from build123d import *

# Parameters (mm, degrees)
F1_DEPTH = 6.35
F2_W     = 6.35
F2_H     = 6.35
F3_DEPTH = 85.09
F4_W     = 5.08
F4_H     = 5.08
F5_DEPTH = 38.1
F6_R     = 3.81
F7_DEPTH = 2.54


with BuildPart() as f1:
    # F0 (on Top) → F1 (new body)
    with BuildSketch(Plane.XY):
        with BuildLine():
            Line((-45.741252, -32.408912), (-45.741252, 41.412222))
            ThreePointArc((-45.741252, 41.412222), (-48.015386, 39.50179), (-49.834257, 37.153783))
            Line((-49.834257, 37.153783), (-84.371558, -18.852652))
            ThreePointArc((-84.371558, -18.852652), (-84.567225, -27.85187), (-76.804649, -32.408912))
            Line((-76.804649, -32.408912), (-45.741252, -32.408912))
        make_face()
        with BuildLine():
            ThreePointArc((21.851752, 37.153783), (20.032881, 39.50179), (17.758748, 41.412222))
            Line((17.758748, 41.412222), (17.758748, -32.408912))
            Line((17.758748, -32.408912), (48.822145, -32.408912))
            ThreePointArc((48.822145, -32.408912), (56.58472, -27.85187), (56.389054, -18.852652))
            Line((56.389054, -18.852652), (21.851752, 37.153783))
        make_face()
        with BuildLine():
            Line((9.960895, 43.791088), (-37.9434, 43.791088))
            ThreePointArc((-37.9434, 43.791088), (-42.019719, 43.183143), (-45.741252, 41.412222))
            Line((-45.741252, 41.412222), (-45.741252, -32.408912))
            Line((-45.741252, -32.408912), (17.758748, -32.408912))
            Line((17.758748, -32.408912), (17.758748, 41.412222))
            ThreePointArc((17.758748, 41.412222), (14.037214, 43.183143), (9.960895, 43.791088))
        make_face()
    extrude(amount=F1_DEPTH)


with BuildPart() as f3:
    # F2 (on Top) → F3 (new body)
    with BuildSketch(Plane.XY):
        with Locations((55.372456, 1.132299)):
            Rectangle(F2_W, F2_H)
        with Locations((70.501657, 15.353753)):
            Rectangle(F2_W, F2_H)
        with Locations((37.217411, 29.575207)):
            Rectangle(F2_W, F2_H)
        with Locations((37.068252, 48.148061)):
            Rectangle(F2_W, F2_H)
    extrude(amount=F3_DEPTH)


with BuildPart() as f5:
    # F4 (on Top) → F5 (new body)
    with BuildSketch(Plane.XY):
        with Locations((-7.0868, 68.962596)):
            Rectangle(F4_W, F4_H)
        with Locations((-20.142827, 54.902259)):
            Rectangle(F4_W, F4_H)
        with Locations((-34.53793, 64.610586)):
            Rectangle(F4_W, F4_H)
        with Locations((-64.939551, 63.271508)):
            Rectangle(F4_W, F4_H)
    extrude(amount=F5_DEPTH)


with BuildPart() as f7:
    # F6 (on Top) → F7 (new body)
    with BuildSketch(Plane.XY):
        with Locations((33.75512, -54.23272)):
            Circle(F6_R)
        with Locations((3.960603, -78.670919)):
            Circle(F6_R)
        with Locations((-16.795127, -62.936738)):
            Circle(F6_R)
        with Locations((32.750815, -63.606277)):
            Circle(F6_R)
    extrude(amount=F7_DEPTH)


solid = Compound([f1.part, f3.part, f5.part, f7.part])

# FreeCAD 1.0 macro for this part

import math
import FreeCAD as App
import Part
import Sketcher
from FreeCAD import Vector
Q = App.Units.Quantity


def add_polygon(sketch, points):
    """Adds a closed chain of lines whose ends are joined by coincident constraints."""
    first, n = sketch.GeometryCount, len(points)
    for a, b in zip(points, points[1:] + points[:1]):
        sketch.addGeometry(Part.LineSegment(App.Vector(*a, 0), App.Vector(*b, 0)), False)
    for i in range(n):
        sketch.addConstraint(Sketcher.Constraint("Coincident", first + i, 2, first + (i + 1) % n, 1))

doc = App.newDocument("Part")
body = doc.addObject("PartDesign::Body", "Body")

# Sketch on XY plane
sketch1 = body.newObject("Sketcher::SketchObject", "Sketch")
sketch1.AttachmentSupport = (doc.getObject("XY_Plane"), [""])
sketch1.MapMode = "FlatFace"
sketch1.addGeometry(Part.ArcOfCircle(Part.Circle(Vector(-37.943405, 29.821091, 0), Vector(0, 0, 1), 13.969994), math.radians(123.930401), math.radians(148.33925)), False)
sketch1.addGeometry(Part.LineSegment(Vector(-49.834257, 37.153783, 0), Vector(-84.371558, -18.852652, 0)), False)
sketch1.addGeometry(Part.ArcOfCircle(Part.Circle(Vector(-76.80465, -23.518913, 0), Vector(0, 0, 1), 8.889999), math.radians(148.339243), math.radians(270.000008)), False)
sketch1.addGeometry(Part.LineSegment(Vector(-76.804649, -32.408912, 0), Vector(48.822145, -32.408912, 0)), False)
sketch1.addGeometry(Part.ArcOfCircle(Part.Circle(Vector(48.822145, -23.518912, 0), Vector(0, 0, 1), 8.89), math.radians(-89.999999), math.radians(31.660748)), False)
sketch1.addGeometry(Part.LineSegment(Vector(56.389054, -18.852652, 0), Vector(21.851752, 37.153783, 0)), False)
sketch1.addGeometry(Part.ArcOfCircle(Part.Circle(Vector(9.96089, 29.821083, 0), Vector(0, 0, 1), 13.970007), math.radians(31.660756), math.radians(56.06958)), False)
sketch1.addGeometry(Part.ArcOfCircle(Part.Circle(Vector(9.960893, 29.821081, 0), Vector(0, 0, 1), 13.970007), math.radians(56.069595), math.radians(89.999991)), False)
sketch1.addGeometry(Part.LineSegment(Vector(9.960895, 43.791088, 0), Vector(-37.9434, 43.791088, 0)), False)
sketch1.addGeometry(Part.ArcOfCircle(Part.Circle(Vector(-37.943399, 29.821087, 0), Vector(0, 0, 1), 13.970001), math.radians(90.000005), math.radians(123.930413)), False)
sketch1.addConstraint(Sketcher.Constraint("Coincident", 0, 2, 1, 1))
sketch1.addConstraint(Sketcher.Constraint("Coincident", 1, 2, 2, 1))
sketch1.addConstraint(Sketcher.Constraint("Coincident", 2, 2, 3, 1))
sketch1.addConstraint(Sketcher.Constraint("Coincident", 3, 2, 4, 1))
sketch1.addConstraint(Sketcher.Constraint("Coincident", 4, 2, 5, 1))
sketch1.addConstraint(Sketcher.Constraint("Coincident", 5, 2, 6, 1))
sketch1.addConstraint(Sketcher.Constraint("Coincident", 6, 2, 7, 1))
sketch1.addConstraint(Sketcher.Constraint("Coincident", 7, 2, 8, 1))
sketch1.addConstraint(Sketcher.Constraint("Coincident", 8, 2, 9, 1))
sketch1.addConstraint(Sketcher.Constraint("Coincident", 9, 2, 0, 1))
sketch1.addConstraint(Sketcher.Constraint("Horizontal", 3))
sketch1.addConstraint(Sketcher.Constraint("Horizontal", 8))
sketch1.addConstraint(Sketcher.Constraint("Coincident", 7, 3, 6, 3))
sketch1.addConstraint(Sketcher.Constraint("Coincident", 9, 3, 0, 3))
sketch1.addConstraint(Sketcher.Constraint("Radius", 2, Q("0.35 in")))
sketch1.addConstraint(Sketcher.Constraint("Radius", 4, Q("0.35 in")))
sketch1.addConstraint(Sketcher.Constraint("Radius", 9, Q("0.55 in")))
sketch1.addConstraint(Sketcher.Constraint("DistanceY", 2, 3, 0, 3, Q("2.1000002 in")))
sketch1.addConstraint(Sketcher.Constraint("DistanceY", 4, 3, 6, 3, Q("2.0999998 in")))
sketch1.addConstraint(Sketcher.Constraint("DistanceX", 9, 3, -1, 1, Q("37.943399 mm")))
sketch1.addConstraint(Sketcher.Constraint("DistanceX", 8, 2, -1, 1, Q("37.9434 mm")))
sketch1.addConstraint(Sketcher.Constraint("DistanceY", 6, 3, 0, 2, Q("7.3327 mm")))
sketch1.addConstraint(Sketcher.Constraint("DistanceX", 1, 2, 0, 2, Q("34.537301 mm")))
sketch1.addConstraint(Sketcher.Constraint("DistanceY", 6, 3, 5, 2, Q("7.3327 mm")))
sketch1.addConstraint(Sketcher.Constraint("DistanceX", 3, 1, 3, 2, Q("125.626794 mm")))
sketch1.addConstraint(Sketcher.Constraint("DistanceX", 8, 2, 8, 1, Q("47.904295 mm")))
sketch1.addConstraint(Sketcher.Constraint("DistanceY", -1, 1, 0, 3, Q("29.821091 mm")))
sketch1.addConstraint(Sketcher.Constraint("DistanceX", 2, 3, -1, 1, Q("76.80465 mm")))
sketch1.addConstraint(Sketcher.Constraint("DistanceX", -1, 1, 6, 3, Q("9.96089 mm")))
sketch1.addConstraint(Sketcher.Constraint("DistanceX", 2, 2, -1, 1, Q("76.804649 mm")))
sketch1.addConstraint(Sketcher.Constraint("DistanceY", 4, 2, -1, 1, Q("18.852652 mm")))
sketch1.addConstraint(Sketcher.Constraint("DistanceX", -1, 1, 6, 2, Q("17.758748 mm")))
sketch1.addConstraint(Sketcher.Constraint("DistanceX", 9, 2, -1, 1, Q("45.741252 mm")))
sketch1.addConstraint(Sketcher.Constraint("DistanceX", 0, 3, 4, 3, Q("86.76555 mm")))
pad1 = body.newObject("PartDesign::Pad", "Pad")
pad1.Profile = sketch1
pad1.Length = Q("0.25 in")
body2 = doc.addObject("PartDesign::Body", "Body001")
body2.AllowCompound = True

# Sketch on XY plane
sketch2 = body2.newObject("Sketcher::SketchObject", "Sketch001")
sketch2.AttachmentSupport = (doc.getObject("XY_Plane001"), [""])
sketch2.MapMode = "FlatFace"
add_polygon(sketch2, [(52, 4), (52, -2), (59, -2), (59, 4)])  # lines 0-3
add_polygon(sketch2, [(67, 19), (67, 12), (74, 12), (74, 19)])  # lines 4-7
add_polygon(sketch2, [(34, 33), (34, 26), (40, 26), (40, 33)])  # lines 8-11
add_polygon(sketch2, [(34, 51), (34, 45), (40, 45), (40, 51)])  # lines 12-15
sketch2.addConstraint(Sketcher.Constraint("Vertical", 0))
sketch2.addConstraint(Sketcher.Constraint("Horizontal", 1))
sketch2.addConstraint(Sketcher.Constraint("Vertical", 2))
sketch2.addConstraint(Sketcher.Constraint("Horizontal", 3))
sketch2.addConstraint(Sketcher.Constraint("Vertical", 4))
sketch2.addConstraint(Sketcher.Constraint("Horizontal", 5))
sketch2.addConstraint(Sketcher.Constraint("Vertical", 6))
sketch2.addConstraint(Sketcher.Constraint("Horizontal", 7))
sketch2.addConstraint(Sketcher.Constraint("Vertical", 8))
sketch2.addConstraint(Sketcher.Constraint("Horizontal", 9))
sketch2.addConstraint(Sketcher.Constraint("Vertical", 10))
sketch2.addConstraint(Sketcher.Constraint("Horizontal", 11))
sketch2.addConstraint(Sketcher.Constraint("Vertical", 12))
sketch2.addConstraint(Sketcher.Constraint("Horizontal", 13))
sketch2.addConstraint(Sketcher.Constraint("Vertical", 14))
sketch2.addConstraint(Sketcher.Constraint("Horizontal", 15))
sketch2.addConstraint(Sketcher.Constraint("Equal", 3, 5))
sketch2.addConstraint(Sketcher.Constraint("Equal", 7, 9))
sketch2.addConstraint(Sketcher.Constraint("Equal", 11, 13))
sketch2.addConstraint(Sketcher.Constraint("Equal", 15, 0))
sketch2.addConstraint(Sketcher.Constraint("Equal", 2, 4))
sketch2.addConstraint(Sketcher.Constraint("Equal", 6, 8))
sketch2.addConstraint(Sketcher.Constraint("Equal", 10, 12))
sketch2.addConstraint(Sketcher.Constraint("DistanceX", 1, 1, 1, 2, Q("0.25 in")))
sketch2.addConstraint(Sketcher.Constraint("DistanceY", 0, 2, -1, 1, Q("2.042701 mm")))
sketch2.addConstraint(Sketcher.Constraint("DistanceX", 2, 2, 4, 2, Q("8.779201 mm")))
sketch2.addConstraint(Sketcher.Constraint("DistanceX", -1, 1, 8, 2, Q("34.042411 mm")))
sketch2.addConstraint(Sketcher.Constraint("DistanceX", -1, 1, 12, 2, Q("33.893252 mm")))
sketch2.addConstraint(Sketcher.Constraint("DistanceY", -1, 1, 12, 2, Q("44.973061 mm")))
sketch2.addConstraint(Sketcher.Constraint("DistanceY", 3, 2, 8, 2, Q("22.092908 mm")))
sketch2.addConstraint(Sketcher.Constraint("DistanceY", 7, 2, 12, 2, Q("26.444308 mm")))
sketch2.addConstraint(Sketcher.Constraint("DistanceX", -1, 1, 0, 2, Q("52.197456 mm")))
pad2 = body2.newObject("PartDesign::Pad", "Pad001")
pad2.Profile = sketch2
pad2.Length = Q("3.35 in")
body3 = doc.addObject("PartDesign::Body", "Body002")
body3.AllowCompound = True

# Sketch on XY plane
sketch3 = body3.newObject("Sketcher::SketchObject", "Sketch002")
sketch3.AttachmentSupport = (doc.getObject("XY_Plane002"), [""])
sketch3.MapMode = "FlatFace"
add_polygon(sketch3, [(-10, 72), (-10, 66), (-5, 66), (-5, 72)])  # lines 0-3
add_polygon(sketch3, [(-23, 57), (-23, 52), (-18, 52), (-18, 57)])  # lines 4-7
add_polygon(sketch3, [(-37, 67), (-37, 62), (-32, 62), (-32, 67)])  # lines 8-11
add_polygon(sketch3, [(-67, 66), (-67, 61), (-62, 61), (-62, 66)])  # lines 12-15
sketch3.addConstraint(Sketcher.Constraint("Vertical", 0))
sketch3.addConstraint(Sketcher.Constraint("Horizontal", 1))
sketch3.addConstraint(Sketcher.Constraint("Vertical", 2))
sketch3.addConstraint(Sketcher.Constraint("Horizontal", 3))
sketch3.addConstraint(Sketcher.Constraint("Vertical", 4))
sketch3.addConstraint(Sketcher.Constraint("Horizontal", 5))
sketch3.addConstraint(Sketcher.Constraint("Vertical", 6))
sketch3.addConstraint(Sketcher.Constraint("Horizontal", 7))
sketch3.addConstraint(Sketcher.Constraint("Vertical", 8))
sketch3.addConstraint(Sketcher.Constraint("Horizontal", 9))
sketch3.addConstraint(Sketcher.Constraint("Vertical", 10))
sketch3.addConstraint(Sketcher.Constraint("Horizontal", 11))
sketch3.addConstraint(Sketcher.Constraint("Vertical", 12))
sketch3.addConstraint(Sketcher.Constraint("Horizontal", 13))
sketch3.addConstraint(Sketcher.Constraint("Vertical", 14))
sketch3.addConstraint(Sketcher.Constraint("Horizontal", 15))
sketch3.addConstraint(Sketcher.Constraint("Equal", 3, 5))
sketch3.addConstraint(Sketcher.Constraint("Equal", 7, 9))
sketch3.addConstraint(Sketcher.Constraint("Equal", 11, 13))
sketch3.addConstraint(Sketcher.Constraint("Equal", 15, 0))
sketch3.addConstraint(Sketcher.Constraint("Equal", 2, 4))
sketch3.addConstraint(Sketcher.Constraint("Equal", 6, 8))
sketch3.addConstraint(Sketcher.Constraint("Equal", 10, 12))
sketch3.addConstraint(Sketcher.Constraint("DistanceX", 1, 1, 1, 2, Q("0.2 in")))
sketch3.addConstraint(Sketcher.Constraint("DistanceX", 0, 2, -1, 1, Q("9.6268 mm")))
sketch3.addConstraint(Sketcher.Constraint("DistanceY", -1, 1, 4, 2, Q("52.362259 mm")))
sketch3.addConstraint(Sketcher.Constraint("DistanceX", 8, 2, -1, 1, Q("37.07793 mm")))
sketch3.addConstraint(Sketcher.Constraint("DistanceX", 12, 2, -1, 1, Q("67.479551 mm")))
sketch3.addConstraint(Sketcher.Constraint("DistanceY", -1, 1, 14, 2, Q("65.811508 mm")))
sketch3.addConstraint(Sketcher.Constraint("DistanceY", 8, 2, 0, 2, Q("4.35201 mm")))
sketch3.addConstraint(Sketcher.Constraint("DistanceY", 12, 2, 8, 2, Q("1.339078 mm")))
sketch3.addConstraint(Sketcher.Constraint("DistanceX", 4, 2, -1, 1, Q("22.682827 mm")))
pad3 = body3.newObject("PartDesign::Pad", "Pad002")
pad3.Profile = sketch3
pad3.Length = Q("1.5 in")
body4 = doc.addObject("PartDesign::Body", "Body003")
body4.AllowCompound = True

# Sketch on XY plane
sketch4 = body4.newObject("Sketcher::SketchObject", "Sketch003")
sketch4.AttachmentSupport = (doc.getObject("XY_Plane003"), [""])
sketch4.MapMode = "FlatFace"
sketch4.addGeometry(Part.Circle(Vector(33.8, -54.2, 0), Vector(0, 0, 1), 3.8), False)
sketch4.addGeometry(Part.Circle(Vector(4, -78.7, 0), Vector(0, 0, 1), 3.8), False)
sketch4.addGeometry(Part.Circle(Vector(-16.8, -62.9, 0), Vector(0, 0, 1), 3.8), False)
sketch4.addGeometry(Part.Circle(Vector(32.8, -63.6, 0), Vector(0, 0, 1), 3.8), False)
sketch4.addConstraint(Sketcher.Constraint("Equal", 0, 1))
sketch4.addConstraint(Sketcher.Constraint("Equal", 1, 2))
sketch4.addConstraint(Sketcher.Constraint("Equal", 2, 3))
sketch4.addConstraint(Sketcher.Constraint("Diameter", 0, Q("0.3 in")))
sketch4.addConstraint(Sketcher.Constraint("DistanceY", 1, 3, 0, 3, Q("24.438199 mm")))
sketch4.addConstraint(Sketcher.Constraint("DistanceX", -1, 1, 0, 3, Q("33.75512 mm")))
sketch4.addConstraint(Sketcher.Constraint("DistanceY", 0, 3, -1, 1, Q("54.23272 mm")))
sketch4.addConstraint(Sketcher.Constraint("DistanceX", 2, 3, 1, 3, Q("20.75573 mm")))
sketch4.addConstraint(Sketcher.Constraint("DistanceY", 1, 3, 2, 3, Q("15.734181 mm")))
sketch4.addConstraint(Sketcher.Constraint("DistanceY", 1, 3, 3, 3, Q("15.064642 mm")))
sketch4.addConstraint(Sketcher.Constraint("DistanceX", -1, 1, 1, 3, Q("3.960603 mm")))
sketch4.addConstraint(Sketcher.Constraint("DistanceX", -1, 1, 3, 3, Q("32.750815 mm")))
pad4 = body4.newObject("PartDesign::Pad", "Pad003")
pad4.Profile = sketch4
pad4.Length = Q("0.1 in")

doc.recompute()
